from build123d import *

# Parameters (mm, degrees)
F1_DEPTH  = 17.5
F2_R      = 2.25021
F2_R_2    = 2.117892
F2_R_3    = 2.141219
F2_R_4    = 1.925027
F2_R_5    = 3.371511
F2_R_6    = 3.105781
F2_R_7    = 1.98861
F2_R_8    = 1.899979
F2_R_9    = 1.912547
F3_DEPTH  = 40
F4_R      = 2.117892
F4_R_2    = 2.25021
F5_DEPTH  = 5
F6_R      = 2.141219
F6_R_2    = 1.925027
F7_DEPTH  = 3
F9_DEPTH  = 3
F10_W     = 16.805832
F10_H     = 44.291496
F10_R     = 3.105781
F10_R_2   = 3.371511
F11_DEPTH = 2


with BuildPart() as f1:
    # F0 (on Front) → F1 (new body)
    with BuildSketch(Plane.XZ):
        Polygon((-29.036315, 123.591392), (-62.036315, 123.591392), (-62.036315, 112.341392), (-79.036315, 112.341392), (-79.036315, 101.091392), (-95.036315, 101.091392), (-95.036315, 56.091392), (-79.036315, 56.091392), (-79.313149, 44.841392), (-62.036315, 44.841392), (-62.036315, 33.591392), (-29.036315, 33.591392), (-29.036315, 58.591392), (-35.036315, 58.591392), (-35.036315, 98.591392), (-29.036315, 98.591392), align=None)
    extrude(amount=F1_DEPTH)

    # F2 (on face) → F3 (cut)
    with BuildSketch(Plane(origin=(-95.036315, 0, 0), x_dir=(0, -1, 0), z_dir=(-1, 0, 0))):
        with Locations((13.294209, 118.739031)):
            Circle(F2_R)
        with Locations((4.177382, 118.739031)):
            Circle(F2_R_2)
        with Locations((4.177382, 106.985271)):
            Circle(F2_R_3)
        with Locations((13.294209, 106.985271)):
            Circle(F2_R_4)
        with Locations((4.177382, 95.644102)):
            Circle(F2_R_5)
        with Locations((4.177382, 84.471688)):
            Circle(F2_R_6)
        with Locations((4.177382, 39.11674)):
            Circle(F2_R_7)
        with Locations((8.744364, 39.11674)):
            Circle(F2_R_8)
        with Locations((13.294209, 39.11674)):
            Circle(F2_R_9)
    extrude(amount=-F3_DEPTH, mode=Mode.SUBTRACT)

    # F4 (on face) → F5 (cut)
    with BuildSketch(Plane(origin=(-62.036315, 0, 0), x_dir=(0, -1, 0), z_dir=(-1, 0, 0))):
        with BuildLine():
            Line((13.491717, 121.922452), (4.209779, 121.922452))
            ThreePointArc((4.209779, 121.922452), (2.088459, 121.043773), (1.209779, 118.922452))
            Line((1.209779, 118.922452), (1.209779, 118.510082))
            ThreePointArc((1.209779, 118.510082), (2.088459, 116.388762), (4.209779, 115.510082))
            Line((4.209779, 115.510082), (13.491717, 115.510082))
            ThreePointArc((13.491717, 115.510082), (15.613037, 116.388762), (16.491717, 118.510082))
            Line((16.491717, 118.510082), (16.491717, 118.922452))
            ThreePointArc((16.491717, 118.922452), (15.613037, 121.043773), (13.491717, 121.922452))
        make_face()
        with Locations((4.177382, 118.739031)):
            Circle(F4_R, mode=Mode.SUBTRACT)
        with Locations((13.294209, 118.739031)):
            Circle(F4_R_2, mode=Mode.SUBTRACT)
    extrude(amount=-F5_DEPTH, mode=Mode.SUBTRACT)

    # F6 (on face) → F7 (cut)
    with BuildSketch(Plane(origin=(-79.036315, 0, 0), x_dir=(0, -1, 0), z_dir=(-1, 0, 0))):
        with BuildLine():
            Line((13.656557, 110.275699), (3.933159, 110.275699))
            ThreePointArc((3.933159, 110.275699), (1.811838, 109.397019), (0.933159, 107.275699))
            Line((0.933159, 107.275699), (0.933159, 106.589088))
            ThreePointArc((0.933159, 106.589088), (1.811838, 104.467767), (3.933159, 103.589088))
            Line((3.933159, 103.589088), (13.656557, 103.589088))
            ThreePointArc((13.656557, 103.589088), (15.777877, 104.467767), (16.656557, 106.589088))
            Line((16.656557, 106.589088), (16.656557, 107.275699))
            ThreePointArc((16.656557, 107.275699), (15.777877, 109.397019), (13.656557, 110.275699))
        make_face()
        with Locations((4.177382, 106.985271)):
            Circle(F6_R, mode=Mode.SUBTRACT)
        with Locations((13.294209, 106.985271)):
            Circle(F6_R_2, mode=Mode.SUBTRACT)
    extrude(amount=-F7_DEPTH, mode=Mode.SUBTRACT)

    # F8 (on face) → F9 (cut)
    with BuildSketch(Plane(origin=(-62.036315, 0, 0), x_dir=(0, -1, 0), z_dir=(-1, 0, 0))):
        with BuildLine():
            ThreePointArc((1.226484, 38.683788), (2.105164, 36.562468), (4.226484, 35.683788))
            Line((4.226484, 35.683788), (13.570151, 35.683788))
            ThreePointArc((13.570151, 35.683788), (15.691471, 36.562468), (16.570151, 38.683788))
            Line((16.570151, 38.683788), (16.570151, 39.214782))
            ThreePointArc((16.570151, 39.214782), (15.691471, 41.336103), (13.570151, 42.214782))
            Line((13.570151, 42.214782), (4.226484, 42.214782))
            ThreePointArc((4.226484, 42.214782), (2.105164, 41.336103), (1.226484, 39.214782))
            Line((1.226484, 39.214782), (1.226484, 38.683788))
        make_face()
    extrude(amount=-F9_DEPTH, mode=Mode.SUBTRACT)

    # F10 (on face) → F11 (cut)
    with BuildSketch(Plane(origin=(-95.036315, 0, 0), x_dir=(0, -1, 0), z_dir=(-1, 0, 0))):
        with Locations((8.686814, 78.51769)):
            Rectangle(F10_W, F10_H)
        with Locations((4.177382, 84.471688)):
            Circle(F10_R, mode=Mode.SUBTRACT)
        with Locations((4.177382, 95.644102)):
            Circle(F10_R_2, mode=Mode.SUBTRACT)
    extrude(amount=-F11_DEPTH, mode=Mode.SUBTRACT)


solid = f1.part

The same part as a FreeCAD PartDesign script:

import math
import FreeCAD as App
import Part
import Sketcher

V = App.Vector
Q = App.Units.Quantity


def add_polygon(sketch, points):
    """Adds a closed chain of lines whose ends are joined by coincident constraints."""
    first, n = sketch.GeometryCount, len(points)
    for a, b in zip(points, points[1:] + points[:1]):
        sketch.addGeometry(Part.LineSegment(App.Vector(*a, 0), App.Vector(*b, 0)), False)
    for i in range(n):
        sketch.addConstraint(Sketcher.Constraint("Coincident", first + i, 2, first + (i + 1) % n, 1))

doc = App.newDocument("Part")
body = doc.addObject("PartDesign::Body", "Body")

sketch1 = body.newObject("Sketcher::SketchObject", "Sketch")
sketch1.AttachmentSupport = (doc.getObject("XZ_Plane"), [""])
sketch1.MapMode = "FlatFace"
add_polygon(sketch1, [(-29, 124), (-62, 124), (-62, 112), (-79, 112), (-79, 101), (-95, 101), (-95, 56), (-79, 56), (-79, 45), (-62, 45), (-62, 34), (-29, 34), (-29, 59), (-35, 59), (-35, 99), (-29, 99)])
sketch1.addConstraint([
    Sketcher.Constraint("Horizontal", 0),
    Sketcher.Constraint("Vertical", 1),
    Sketcher.Constraint("Horizontal", 2),
    Sketcher.Constraint("Vertical", 3),
    Sketcher.Constraint("Horizontal", 4),
    Sketcher.Constraint("Vertical", 5),
    Sketcher.Constraint("Horizontal", 6),
    Sketcher.Constraint("Horizontal", 8),
    Sketcher.Constraint("Vertical", 9),
    Sketcher.Constraint("Horizontal", 10),
    Sketcher.Constraint("Vertical", 11),
    Sketcher.Constraint("Horizontal", 12),
    Sketcher.Constraint("Vertical", 13),
    Sketcher.Constraint("Horizontal", 14),
    Sketcher.Constraint("Vertical", 15),
    Sketcher.Constraint("Vertical", 3, 2, 6, 2),
    Sketcher.Constraint("Vertical", 1, 2, 8, 2),
    Sketcher.Constraint("Vertical", 11, 2, 14, 2),
    Sketcher.Constraint("Equal", 1, 3),
    Sketcher.Constraint("Equal", 3, 9),
    Sketcher.Constraint("Equal", 11, 15),
    Sketcher.Constraint("DistanceX", 0, 2, 0, 1, Q("33 mm")),
    Sketcher.Constraint("DistanceX", 2, 2, 2, 1, Q("17 mm")),
    Sketcher.Constraint("DistanceX", 4, 2, 4, 1, Q("16 mm")),
    Sketcher.Constraint("DistanceX", 12, 2, 12, 1, Q("6 mm")),
    Sketcher.Constraint("DistanceY", 5, 2, 5, 1, Q("45 mm")),
    Sketcher.Constraint("DistanceY", 11, 1, 11, 2, Q("25 mm")),
    Sketcher.Constraint("DistanceY", 13, 1, 13, 2, Q("40 mm")),
    Sketcher.Constraint("DistanceY", 1, 2, 1, 1, Q("11.25 mm")),
    Sketcher.Constraint("DistanceX", 8, 1, 8, 2, Q("17.276834 mm")),
    Sketcher.Constraint("DistanceY", -1, 1, 0, 2, Q("123.591392 mm")),
    Sketcher.Constraint("DistanceX", 7, 2, -1, 1, Q("79.313149 mm")),
])
pad1 = body.newObject("PartDesign::Pad", "Pad")
pad1.Profile = sketch1
pad1.Length = 17.5

sketch2 = body.newObject("Sketcher::SketchObject", "Sketch001")
sketch2.AttachmentSupport = (doc.getObject("YZ_Plane"), [""])
sketch2.MapMode = "FlatFace"
sketch2.AttachmentOffset = App.Placement(V(0, 0, -95.036315), App.Rotation())
sketch2.addGeometry([
    Part.Circle(V(-13.3, 118.7, 0), V(0, 0, 1), 2.3),
    Part.Circle(V(-4.2, 118.7, 0), V(0, 0, 1), 2.1),
    Part.Circle(V(-4.2, 107, 0), V(0, 0, 1), 2.1),
    Part.Circle(V(-13.3, 107, 0), V(0, 0, 1), 1.9),
    Part.Circle(V(-4.2, 95.6, 0), V(0, 0, 1), 3.4),
    Part.Circle(V(-4.2, 84.5, 0), V(0, 0, 1), 3.1),
    Part.Circle(V(-4.2, 39.1, 0), V(0, 0, 1), 2),
    Part.Circle(V(-8.7, 39.1, 0), V(0, 0, 1), 1.9),
    Part.Circle(V(-13.3, 39.1, 0), V(0, 0, 1), 1.9),
], False)
sketch2.addConstraint([
    Sketcher.Constraint("Horizontal", 0, 3, 1, 3),
    Sketcher.Constraint("Horizontal", 2, 3, 3, 3),
    Sketcher.Constraint("Horizontal", 6, 3, 7, 3),
    Sketcher.Constraint("Horizontal", 7, 3, 8, 3),
    Sketcher.Constraint("Vertical", 1, 3, 2, 3),
    Sketcher.Constraint("Vertical", 0, 3, 3, 3),
    Sketcher.Constraint("Vertical", 2, 3, 4, 3),
    Sketcher.Constraint("Vertical", 4, 3, 5, 3),
    Sketcher.Constraint("Vertical", 5, 3, 6, 3),
    Sketcher.Constraint("Vertical", 3, 3, 8, 3),
    Sketcher.Constraint("Diameter", 0, Q("4.50042 mm")),
    Sketcher.Constraint("Diameter", 5, Q("6.211562 mm")),
    Sketcher.Constraint("Diameter", 6, Q("3.97722 mm")),
    Sketcher.Constraint("Diameter", 7, Q("3.799958 mm")),
    Sketcher.Constraint("Diameter", 1, Q("4.235784 mm")),
    Sketcher.Constraint("Diameter", 2, Q("4.282438 mm")),
    Sketcher.Constraint("Diameter", 3, Q("3.850054 mm")),
    Sketcher.Constraint("Diameter", 4, Q("6.743022 mm")),
    Sketcher.Constraint("Diameter", 8, Q("3.825094 mm")),
    Sketcher.Constraint("DistanceX", 0, 3, -1, 1, Q("13.294209 mm")),
    Sketcher.Constraint("DistanceY", -1, 1, 0, 3, Q("118.739031 mm")),
    Sketcher.Constraint("DistanceX", 1, 3, -1, 1, Q("4.177382 mm")),
    Sketcher.Constraint("DistanceY", -1, 1, 2, 3, Q("106.985271 mm")),
    Sketcher.Constraint("DistanceY", -1, 1, 5, 3, Q("84.471688 mm")),
    Sketcher.Constraint("DistanceY", -1, 1, 6, 3, Q("39.11674 mm")),
    Sketcher.Constraint("DistanceY", 4, 3, 2, 3, Q("11.341169 mm")),
    Sketcher.Constraint("DistanceX", 7, 3, 6, 3, Q("4.566982 mm")),
])
pocket1 = body.newObject("PartDesign::Pocket", "Pocket")
pocket1.Profile = sketch2
pocket1.Length = 40
pocket1.Reversed = True

sketch3 = body.newObject("Sketcher::SketchObject", "Sketch002")
sketch3.AttachmentSupport = (doc.getObject("YZ_Plane"), [""])
sketch3.MapMode = "FlatFace"
sketch3.AttachmentOffset = App.Placement(V(0, 0, -62.036315), App.Rotation())
sketch3.addGeometry([
    Part.LineSegment(V(-13.49, 121.92, 0), V(-4.21, 121.92, 0)),
    Part.ArcOfCircle(Part.Circle(V(-4.21, 118.92, 0), V(0, 0, 1), 3), math.radians(0), math.radians(90)),
    Part.LineSegment(V(-1.21, 118.92, 0), V(-1.21, 118.51, 0)),
    Part.ArcOfCircle(Part.Circle(V(-4.21, 118.51, 0), V(0, 0, 1), 3), math.radians(-90), math.radians(0)),
    Part.LineSegment(V(-4.21, 115.51, 0), V(-13.49, 115.51, 0)),
    Part.ArcOfCircle(Part.Circle(V(-13.49, 118.51, 0), V(0, 0, 1), 3), math.radians(-180), math.radians(-90)),
    Part.LineSegment(V(-16.49, 118.51, 0), V(-16.49, 118.92, 0)),
    Part.ArcOfCircle(Part.Circle(V(-13.49, 118.92, 0), V(0, 0, 1), 3), math.radians(90), math.radians(180)),
    Part.Circle(V(-4.18, 118.74, 0), V(0, 0, 1), 2.12),
    Part.Circle(V(-13.29, 118.74, 0), V(0, 0, 1), 2.25),
], False)
sketch3.addConstraint([
    Sketcher.Constraint("Tangent", 0, 2, 1, 2),
    Sketcher.Constraint("Tangent", 1, 1, 2, 1),
    Sketcher.Constraint("Tangent", 2, 2, 3, 2),
    Sketcher.Constraint("Tangent", 3, 1, 4, 1),
    Sketcher.Constraint("Tangent", 4, 2, 5, 2),
    Sketcher.Constraint("Tangent", 5, 1, 6, 1),
    Sketcher.Constraint("Tangent", 6, 2, 7, 2),
    Sketcher.Constraint("Tangent", 7, 1, 0, 1),
    Sketcher.Constraint("Horizontal", 0),
    Sketcher.Constraint("Vertical", 2),
    Sketcher.Constraint("Horizontal", 4),
    Sketcher.Constraint("Vertical", 6),
    Sketcher.Constraint("Equal", 1, 3),
    Sketcher.Constraint("Equal", 3, 5),
    Sketcher.Constraint("Equal", 5, 7),
    Sketcher.Constraint("Horizontal", 8, 3, 9, 3),
    Sketcher.Constraint("Radius", 1, Q("2.999999 mm")),
    Sketcher.Constraint("Diameter", 9, Q("4.50042 mm")),
    Sketcher.Constraint("Diameter", 8, Q("4.235784 mm")),
    Sketcher.Constraint("DistanceY", 2, 2, 2, 1, Q("0.41237 mm")),
    Sketcher.Constraint("DistanceX", 3, 3, 8, 3, Q("0.032398 mm")),
    Sketcher.Constraint("DistanceX", 0, 1, 0, 2, Q("9.281938 mm")),
    Sketcher.Constraint("DistanceX", 1, 3, -1, 1, Q("4.209778 mm")),
    Sketcher.Constraint("DistanceY", -1, 1, 8, 3, Q("118.739031 mm")),
    Sketcher.Constraint("DistanceX", 9, 3, -1, 1, Q("13.294209 mm")),
    Sketcher.Constraint("DistanceY", -1, 1, 2, 2, Q("118.510082 mm")),
])
pocket2 = body.newObject("PartDesign::Pocket", "Pocket001")
pocket2.Profile = sketch3
pocket2.Length = 5
pocket2.Reversed = True

sketch4 = body.newObject("Sketcher::SketchObject", "Sketch003")
sketch4.AttachmentSupport = (doc.getObject("YZ_Plane"), [""])
sketch4.MapMode = "FlatFace"
sketch4.AttachmentOffset = App.Placement(V(0, 0, -79.036315), App.Rotation())
sketch4.addGeometry([
    Part.LineSegment(V(-13.7, 110.3, 0), V(-3.9, 110.3, 0)),
    Part.ArcOfCircle(Part.Circle(V(-3.9, 107.3, 0), V(0, 0, 1), 3), math.radians(0), math.radians(90)),
    Part.LineSegment(V(-0.9, 107.3, 0), V(-0.9, 106.6, 0)),
    Part.ArcOfCircle(Part.Circle(V(-3.9, 106.6, 0), V(0, 0, 1), 3), math.radians(-90), math.radians(0)),
    Part.LineSegment(V(-3.9, 103.6, 0), V(-13.7, 103.6, 0)),
    Part.ArcOfCircle(Part.Circle(V(-13.7, 106.6, 0), V(0, 0, 1), 3), math.radians(180), math.radians(270)),
    Part.LineSegment(V(-16.7, 106.6, 0), V(-16.7, 107.3, 0)),
    Part.ArcOfCircle(Part.Circle(V(-13.7, 107.3, 0), V(0, 0, 1), 3), math.radians(90), math.radians(180)),
    Part.Circle(V(-4.2, 107, 0), V(0, 0, 1), 2.1),
    Part.Circle(V(-13.3, 107, 0), V(0, 0, 1), 1.9),
], False)
sketch4.addConstraint([
    Sketcher.Constraint("Tangent", 0, 2, 1, 2),
    Sketcher.Constraint("Tangent", 1, 1, 2, 1),
    Sketcher.Constraint("Tangent", 2, 2, 3, 2),
    Sketcher.Constraint("Tangent", 3, 1, 4, 1),
    Sketcher.Constraint("Tangent", 4, 2, 5, 2),
    Sketcher.Constraint("Tangent", 5, 1, 6, 1),
    Sketcher.Constraint("Tangent", 6, 2, 7, 2),
    Sketcher.Constraint("Tangent", 7, 1, 0, 1),
    Sketcher.Constraint("Horizontal", 0),
    Sketcher.Constraint("Vertical", 2),
    Sketcher.Constraint("Horizontal", 4),
    Sketcher.Constraint("Vertical", 6),
    Sketcher.Constraint("Equal", 1, 3),
    Sketcher.Constraint("Equal", 3, 5),
    Sketcher.Constraint("Equal", 5, 7),
    Sketcher.Constraint("Horizontal", 8, 3, 9, 3),
    Sketcher.Constraint("Radius", 1, Q("2.999999 mm")),
    Sketcher.Constraint("Diameter", 8, Q("4.282438 mm")),
    Sketcher.Constraint("Diameter", 9, Q("3.850054 mm")),
    Sketcher.Constraint("DistanceY", 2, 2, 2, 1, Q("0.686611 mm")),
    Sketcher.Constraint("DistanceY", -1, 1, 1, 3, Q("107.2757 mm")),
    Sketcher.Constraint("DistanceX", 5, 3, 3, 3, Q("9.723401 mm")),
    Sketcher.Constraint("DistanceX", 1, 3, -1, 1, Q("3.933158 mm")),
    Sketcher.Constraint("DistanceX", 8, 3, -1, 1, Q("4.177382 mm")),
    Sketcher.Constraint("DistanceY", -1, 1, 8, 3, Q("106.985271 mm")),
    Sketcher.Constraint("DistanceX", 9, 3, -1, 1, Q("13.294209 mm")),
])
pocket3 = body.newObject("PartDesign::Pocket", "Pocket002")
pocket3.Profile = sketch4
pocket3.Length = 3
pocket3.Reversed = True

sketch5 = body.newObject("Sketcher::SketchObject", "Sketch004")
sketch5.AttachmentSupport = (doc.getObject("YZ_Plane"), [""])
sketch5.MapMode = "FlatFace"
sketch5.AttachmentOffset = App.Placement(V(0, 0, -62.036315), App.Rotation())
sketch5.addGeometry([
    Part.ArcOfCircle(Part.Circle(V(-4.2, 38.7, 0), V(0, 0, 1), 3), math.radians(-90), math.radians(0)),
    Part.LineSegment(V(-4.2, 35.7, 0), V(-13.6, 35.7, 0)),
    Part.ArcOfCircle(Part.Circle(V(-13.6, 38.7, 0), V(0, 0, 1), 3), math.radians(-180), math.radians(-90)),
    Part.LineSegment(V(-16.6, 38.7, 0), V(-16.6, 39.2, 0)),
    Part.ArcOfCircle(Part.Circle(V(-13.6, 39.2, 0), V(0, 0, 1), 3), math.radians(90), math.radians(180)),
    Part.LineSegment(V(-13.6, 42.2, 0), V(-4.2, 42.2, 0)),
    Part.ArcOfCircle(Part.Circle(V(-4.2, 39.2, 0), V(0, 0, 1), 3), math.radians(0), math.radians(90)),
    Part.LineSegment(V(-1.2, 39.2, 0), V(-1.2, 38.7, 0)),
], False)
sketch5.addConstraint([
    Sketcher.Constraint("Tangent", 0, 1, 1, 1),
    Sketcher.Constraint("Tangent", 1, 2, 2, 2),
    Sketcher.Constraint("Tangent", 2, 1, 3, 1),
    Sketcher.Constraint("Tangent", 3, 2, 4, 2),
    Sketcher.Constraint("Tangent", 4, 1, 5, 1),
    Sketcher.Constraint("Tangent", 5, 2, 6, 2),
    Sketcher.Constraint("Tangent", 6, 1, 7, 1),
    Sketcher.Constraint("Tangent", 7, 2, 0, 2),
    Sketcher.Constraint("Horizontal", 1),
    Sketcher.Constraint("Vertical", 3),
    Sketcher.Constraint("Horizontal", 5),
    Sketcher.Constraint("Vertical", 7),
    Sketcher.Constraint("Equal", 0, 2),
    Sketcher.Constraint("Equal", 2, 4),
    Sketcher.Constraint("Equal", 4, 6),
    Sketcher.Constraint("Radius", 0, Q("3.000001 mm")),
    Sketcher.Constraint("DistanceX", 1, 2, 1, 1, Q("9.343667 mm")),
    Sketcher.Constraint("DistanceY", 3, 1, 3, 2, Q("0.530994 mm")),
    Sketcher.Constraint("DistanceY", -1, 1, 0, 3, Q("38.683789 mm")),
    Sketcher.Constraint("DistanceX", 2, 3, -1, 1, Q("13.57015 mm")),
])
pocket4 = body.newObject("PartDesign::Pocket", "Pocket003")
pocket4.Profile = sketch5
pocket4.Length = 3
pocket4.Reversed = True

sketch6 = body.newObject("Sketcher::SketchObject", "Sketch005")
sketch6.AttachmentSupport = (doc.getObject("YZ_Plane"), [""])
sketch6.MapMode = "FlatFace"
sketch6.AttachmentOffset = App.Placement(V(0, 0, -95.036315), App.Rotation())
add_polygon(sketch6, [(-0.3, 100.7), (-0.3, 56.4), (-17.1, 56.4), (-17.1, 100.7)])
sketch6.addGeometry(Part.Circle(V(-4.2, 84.5, 0), V(0, 0, 1), 3.1), False)
sketch6.addGeometry(Part.Circle(V(-4.2, 95.6, 0), V(0, 0, 1), 3.4), False)
sketch6.addConstraint([
    Sketcher.Constraint("Vertical", 0),
    Sketcher.Constraint("Horizontal", 1),
    Sketcher.Constraint("Vertical", 2),
    Sketcher.Constraint("Horizontal", 3),
    Sketcher.Constraint("Vertical", 4, 3, 5, 3),
    Sketcher.Constraint("Diameter", 4, Q("6.211562 mm")),
    Sketcher.Constraint("Diameter", 5, Q("6.743022 mm")),
    Sketcher.Constraint("DistanceX", 1, 2, 1, 1, Q("16.805832 mm")),
    Sketcher.Constraint("DistanceY", 0, 2, 0, 1, Q("44.291496 mm")),
    Sketcher.Constraint("DistanceX", 4, 3, -1, 1, Q("4.177382 mm")),
    Sketcher.Constraint("DistanceY", -1, 1, 4, 3, Q("84.471688 mm")),
    Sketcher.Constraint("DistanceY", -1, 1, 0, 2, Q("56.371942 mm")),
    Sketcher.Constraint("DistanceX", 1, 2, -1, 1, Q("17.08973 mm")),
    Sketcher.Constraint("DistanceY", 0, 2, 5, 3, Q("39.27216 mm")),
])
pocket5 = body.newObject("PartDesign::Pocket", "Pocket004")
pocket5.Profile = sketch6
pocket5.Length = 2
pocket5.Reversed = True

doc.recompute()
